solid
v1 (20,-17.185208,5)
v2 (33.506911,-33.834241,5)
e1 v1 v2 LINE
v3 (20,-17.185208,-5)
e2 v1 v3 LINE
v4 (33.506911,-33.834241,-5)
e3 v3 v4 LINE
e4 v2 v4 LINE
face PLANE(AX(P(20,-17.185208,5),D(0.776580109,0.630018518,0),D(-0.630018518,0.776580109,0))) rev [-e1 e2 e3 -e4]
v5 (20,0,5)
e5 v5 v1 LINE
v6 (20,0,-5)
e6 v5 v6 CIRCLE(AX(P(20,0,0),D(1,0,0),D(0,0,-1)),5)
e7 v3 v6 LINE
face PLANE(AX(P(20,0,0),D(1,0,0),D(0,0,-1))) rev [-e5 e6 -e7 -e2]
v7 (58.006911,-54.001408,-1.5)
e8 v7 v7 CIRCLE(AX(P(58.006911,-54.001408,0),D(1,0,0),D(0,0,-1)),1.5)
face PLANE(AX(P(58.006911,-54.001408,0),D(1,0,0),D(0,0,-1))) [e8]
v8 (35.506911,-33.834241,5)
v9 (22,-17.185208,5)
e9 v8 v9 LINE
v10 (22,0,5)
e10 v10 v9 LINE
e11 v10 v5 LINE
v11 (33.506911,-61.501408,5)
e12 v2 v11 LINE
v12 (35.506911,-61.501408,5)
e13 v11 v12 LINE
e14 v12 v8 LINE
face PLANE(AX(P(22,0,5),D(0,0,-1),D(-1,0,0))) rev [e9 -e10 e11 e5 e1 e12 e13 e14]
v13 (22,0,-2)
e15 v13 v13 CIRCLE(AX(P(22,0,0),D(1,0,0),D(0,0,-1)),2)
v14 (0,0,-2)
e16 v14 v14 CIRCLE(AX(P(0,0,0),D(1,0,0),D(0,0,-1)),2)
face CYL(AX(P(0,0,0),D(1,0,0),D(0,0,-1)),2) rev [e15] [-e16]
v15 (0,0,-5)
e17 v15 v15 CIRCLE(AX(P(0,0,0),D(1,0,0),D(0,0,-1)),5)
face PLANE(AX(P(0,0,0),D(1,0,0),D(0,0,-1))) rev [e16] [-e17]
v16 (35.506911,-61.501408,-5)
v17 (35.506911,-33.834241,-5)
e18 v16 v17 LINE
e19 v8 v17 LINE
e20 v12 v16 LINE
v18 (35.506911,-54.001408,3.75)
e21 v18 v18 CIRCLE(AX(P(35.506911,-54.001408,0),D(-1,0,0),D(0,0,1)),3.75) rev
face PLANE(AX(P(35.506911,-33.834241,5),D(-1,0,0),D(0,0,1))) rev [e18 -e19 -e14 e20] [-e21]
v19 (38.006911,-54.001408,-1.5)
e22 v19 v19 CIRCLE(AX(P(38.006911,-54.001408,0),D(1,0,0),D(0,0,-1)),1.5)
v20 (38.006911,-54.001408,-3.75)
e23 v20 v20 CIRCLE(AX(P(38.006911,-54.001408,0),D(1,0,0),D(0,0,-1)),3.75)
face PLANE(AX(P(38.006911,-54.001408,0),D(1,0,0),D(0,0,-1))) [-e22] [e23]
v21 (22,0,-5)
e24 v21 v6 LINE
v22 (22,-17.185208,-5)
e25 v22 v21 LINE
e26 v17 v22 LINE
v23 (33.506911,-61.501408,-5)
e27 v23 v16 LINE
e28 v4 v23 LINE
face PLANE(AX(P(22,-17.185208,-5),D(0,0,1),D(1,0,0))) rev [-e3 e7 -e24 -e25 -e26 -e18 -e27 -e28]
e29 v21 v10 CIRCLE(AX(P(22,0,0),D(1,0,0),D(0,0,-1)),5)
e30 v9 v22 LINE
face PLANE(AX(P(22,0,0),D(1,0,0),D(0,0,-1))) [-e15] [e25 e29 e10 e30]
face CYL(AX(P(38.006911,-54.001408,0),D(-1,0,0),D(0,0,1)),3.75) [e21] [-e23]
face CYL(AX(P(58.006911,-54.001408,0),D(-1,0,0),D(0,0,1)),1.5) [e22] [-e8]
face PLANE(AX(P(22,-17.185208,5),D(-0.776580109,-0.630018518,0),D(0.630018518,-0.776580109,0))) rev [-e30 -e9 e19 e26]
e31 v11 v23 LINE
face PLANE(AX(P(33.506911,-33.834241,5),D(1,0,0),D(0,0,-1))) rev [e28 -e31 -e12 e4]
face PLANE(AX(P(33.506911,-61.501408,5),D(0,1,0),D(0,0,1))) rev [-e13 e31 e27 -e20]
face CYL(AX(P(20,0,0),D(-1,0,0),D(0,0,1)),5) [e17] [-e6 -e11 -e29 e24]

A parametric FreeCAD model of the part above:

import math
import FreeCAD as App
import Part
import Sketcher
from FreeCAD import Vector
Q = App.Units.Quantity

doc = App.newDocument("Part")
body = doc.addObject("PartDesign::Body", "Body")

# Sketch on YZ plane
sketch1 = body.newObject("Sketcher::SketchObject", "Sketch")
sketch1.AttachmentSupport = (doc.getObject("YZ_Plane"), [""])
sketch1.MapMode = "FlatFace"
sketch1.addGeometry(Part.Circle(Vector(0, 0, 0), Vector(0, 0, 1), 5), False)
sketch1.addConstraint([
    Sketcher.Constraint("Coincident", 0, 3, -1, 1),
    Sketcher.Constraint("Diameter", 0, Q("10 mm")),
])
pad1 = body.newObject("PartDesign::Pad", "Pad")
pad1.Profile = sketch1
pad1.Length = 20

# Sketch on YZ plane
sketch2 = body.newObject("Sketcher::SketchObject", "Sketch001")
sketch2.AttachmentSupport = (doc.getObject("YZ_Plane"), [""])
sketch2.MapMode = "FlatFace"
sketch2.AttachmentOffset = App.Placement(Vector(0, 0, 20), App.Rotation())
sketch2.addGeometry([
    Part.LineSegment(Vector(0, 5, 0), Vector(-17, 5, 0)),
    Part.LineSegment(Vector(-17, 5, 0), Vector(-17, -5, 0)),
    Part.LineSegment(Vector(-17, -5, 0), Vector(0, -5, 0)),
    Part.ArcOfCircle(Part.Circle(Vector(0, 0, 0), Vector(0, 0, 1), 5), math.radians(-90), math.radians(90)),
], False)
sketch2.addConstraint([
    Sketcher.Constraint("Coincident", 0, 2, 1, 1),
    Sketcher.Constraint("Coincident", 1, 2, 2, 1),
    Sketcher.Constraint("Tangent", 2, 2, 3, 1),
    Sketcher.Constraint("Tangent", 3, 2, 0, 1),
    Sketcher.Constraint("Horizontal", 0),
    Sketcher.Constraint("Vertical", 1),
    Sketcher.Constraint("Horizontal", 2),
    Sketcher.Constraint("Coincident", 3, 3, -1, 1),
    Sketcher.Constraint("Radius", 3, Q("5 mm")),
    Sketcher.Constraint("DistanceX", 0, 2, 0, 1, Q("17.185208 mm")),
])
pad2 = body.newObject("PartDesign::Pad", "Pad001")
pad2.Profile = sketch2
pad2.Length = 2

# Sketch on YZ plane
sketch3 = body.newObject("Sketcher::SketchObject", "Sketch002")
sketch3.AttachmentSupport = (doc.getObject("YZ_Plane"), [""])
sketch3.MapMode = "FlatFace"
sketch3.AttachmentOffset = App.Placement(Vector(0, 0, 22), App.Rotation())
sketch3.addGeometry(Part.Circle(Vector(0, 0, 0), Vector(0, 0, 1), 2), False)
sketch3.addConstraint([
    Sketcher.Constraint("Coincident", 0, 3, -1, 1),
    Sketcher.Constraint("Diameter", 0, Q("4 mm")),
])
pocket1 = body.newObject("PartDesign::Pocket", "Pocket")
pocket1.Profile = sketch3
pocket1.Type = "ThroughAll"

# Sketch on XY plane
sketch4 = body.newObject("Sketcher::SketchObject", "Sketch003")
sketch4.AttachmentSupport = (doc.getObject("XY_Plane"), [""])
sketch4.MapMode = "FlatFace"
sketch4.addGeometry([
    Part.LineSegment(Vector(20, -17.2, 0), Vector(33.5, -33.8, 0)),
    Part.LineSegment(Vector(33.5, -33.8, 0), Vector(35.5, -33.8, 0)),
    Part.LineSegment(Vector(35.5, -33.8, 0), Vector(22, -17.2, 0)),
    Part.LineSegment(Vector(22, -17.2, 0), Vector(20, -17.2, 0)),
], False)
sketch4.addConstraint([
    Sketcher.Constraint("Coincident", 0, 2, 1, 1),
    Sketcher.Constraint("Coincident", 1, 2, 2, 1),
    Sketcher.Constraint("Coincident", 2, 2, 3, 1),
    Sketcher.Constraint("Coincident", 3, 2, 0, 1),
    Sketcher.Constraint("Horizontal", 1),
    Sketcher.Constraint("Horizontal", 3),
    Sketcher.Constraint("Parallel", 0, 2),
    Sketcher.Constraint("DistanceX", 1, 1, 1, 2, Q("2 mm")),
    Sketcher.Constraint("DistanceX", -1, 1, 2, 2, Q("22 mm")),
    Sketcher.Constraint("Distance", 0, Q("21.438912 mm")),
    Sketcher.Constraint("DistanceX", -1, 1, 0, 2, Q("33.506911 mm")),
    Sketcher.Constraint("DistanceY", 0, 2, -1, 1, Q("33.834241 mm")),
])
pad3 = body.newObject("PartDesign::Pad", "Pad002")
pad3.Profile = sketch4
pad3.Length = 10
pad3.Midplane = True

# Sketch on XY plane
sketch5 = body.newObject("Sketcher::SketchObject", "Sketch004")
sketch5.AttachmentSupport = (doc.getObject("XY_Plane"), [""])
sketch5.MapMode = "FlatFace"
sketch5.addGeometry([
    Part.LineSegment(Vector(33.5, -33.8, 0), Vector(33.5, -61.5, 0)),
    Part.LineSegment(Vector(33.5, -61.5, 0), Vector(35.5, -61.5, 0)),
    Part.LineSegment(Vector(35.5, -61.5, 0), Vector(35.5, -33.8, 0)),
    Part.LineSegment(Vector(35.5, -33.8, 0), Vector(33.5, -33.8, 0)),
], False)
sketch5.addConstraint([
    Sketcher.Constraint("Coincident", 0, 2, 1, 1),
    Sketcher.Constraint("Coincident", 1, 2, 2, 1),
    Sketcher.Constraint("Coincident", 2, 2, 3, 1),
    Sketcher.Constraint("Coincident", 3, 2, 0, 1),
    Sketcher.Constraint("Vertical", 0),
    Sketcher.Constraint("Horizontal", 1),
    Sketcher.Constraint("Vertical", 2),
    Sketcher.Constraint("Horizontal", 3),
    Sketcher.Constraint("DistanceX", 1, 1, 1, 2, Q("2 mm")),
    Sketcher.Constraint("DistanceY", 0, 2, 0, 1, Q("27.667168 mm")),
    Sketcher.Constraint("DistanceX", -1, 1, 0, 2, Q("33.506911 mm")),
    Sketcher.Constraint("DistanceY", 0, 2, -1, 1, Q("61.501408 mm")),
])
pad4 = body.newObject("PartDesign::Pad", "Pad003")
pad4.Profile = sketch5
pad4.Length = 10
pad4.Midplane = True

# Sketch on YZ plane
sketch6 = body.newObject("Sketcher::SketchObject", "Sketch005")
sketch6.AttachmentSupport = (doc.getObject("YZ_Plane"), [""])
sketch6.MapMode = "FlatFace"
sketch6.AttachmentOffset = App.Placement(Vector(0, 0, 35.506911), App.Rotation())
sketch6.addGeometry(Part.Circle(Vector(-54, 0, 0), Vector(0, 0, 1), 3.8), False)
sketch6.addConstraint([
    Sketcher.Constraint("PointOnObject", 0, 3, -1),
    Sketcher.Constraint("Diameter", 0, Q("7.5 mm")),
    Sketcher.Constraint("DistanceX", 0, 3, -1, 1, Q("54.001408 mm")),
])
pad5 = body.newObject("PartDesign::Pad", "Pad004")
pad5.Profile = sketch6
pad5.Length = 2.5

# Sketch on YZ plane
sketch7 = body.newObject("Sketcher::SketchObject", "Sketch006")
sketch7.AttachmentSupport = (doc.getObject("YZ_Plane"), [""])
sketch7.MapMode = "FlatFace"
sketch7.AttachmentOffset = App.Placement(Vector(0, 0, 38.006911), App.Rotation())
sketch7.addGeometry(Part.Circle(Vector(-54, 0, 0), Vector(0, 0, 1), 1.5), False)
sketch7.addConstraint([
    Sketcher.Constraint("PointOnObject", 0, 3, -1),
    Sketcher.Constraint("Diameter", 0, Q("3 mm")),
    Sketcher.Constraint("DistanceX", 0, 3, -1, 1, Q("54.001408 mm")),
])
pad6 = body.newObject("PartDesign::Pad", "Pad005")
pad6.Profile = sketch7
pad6.Length = 20

doc.recompute()
